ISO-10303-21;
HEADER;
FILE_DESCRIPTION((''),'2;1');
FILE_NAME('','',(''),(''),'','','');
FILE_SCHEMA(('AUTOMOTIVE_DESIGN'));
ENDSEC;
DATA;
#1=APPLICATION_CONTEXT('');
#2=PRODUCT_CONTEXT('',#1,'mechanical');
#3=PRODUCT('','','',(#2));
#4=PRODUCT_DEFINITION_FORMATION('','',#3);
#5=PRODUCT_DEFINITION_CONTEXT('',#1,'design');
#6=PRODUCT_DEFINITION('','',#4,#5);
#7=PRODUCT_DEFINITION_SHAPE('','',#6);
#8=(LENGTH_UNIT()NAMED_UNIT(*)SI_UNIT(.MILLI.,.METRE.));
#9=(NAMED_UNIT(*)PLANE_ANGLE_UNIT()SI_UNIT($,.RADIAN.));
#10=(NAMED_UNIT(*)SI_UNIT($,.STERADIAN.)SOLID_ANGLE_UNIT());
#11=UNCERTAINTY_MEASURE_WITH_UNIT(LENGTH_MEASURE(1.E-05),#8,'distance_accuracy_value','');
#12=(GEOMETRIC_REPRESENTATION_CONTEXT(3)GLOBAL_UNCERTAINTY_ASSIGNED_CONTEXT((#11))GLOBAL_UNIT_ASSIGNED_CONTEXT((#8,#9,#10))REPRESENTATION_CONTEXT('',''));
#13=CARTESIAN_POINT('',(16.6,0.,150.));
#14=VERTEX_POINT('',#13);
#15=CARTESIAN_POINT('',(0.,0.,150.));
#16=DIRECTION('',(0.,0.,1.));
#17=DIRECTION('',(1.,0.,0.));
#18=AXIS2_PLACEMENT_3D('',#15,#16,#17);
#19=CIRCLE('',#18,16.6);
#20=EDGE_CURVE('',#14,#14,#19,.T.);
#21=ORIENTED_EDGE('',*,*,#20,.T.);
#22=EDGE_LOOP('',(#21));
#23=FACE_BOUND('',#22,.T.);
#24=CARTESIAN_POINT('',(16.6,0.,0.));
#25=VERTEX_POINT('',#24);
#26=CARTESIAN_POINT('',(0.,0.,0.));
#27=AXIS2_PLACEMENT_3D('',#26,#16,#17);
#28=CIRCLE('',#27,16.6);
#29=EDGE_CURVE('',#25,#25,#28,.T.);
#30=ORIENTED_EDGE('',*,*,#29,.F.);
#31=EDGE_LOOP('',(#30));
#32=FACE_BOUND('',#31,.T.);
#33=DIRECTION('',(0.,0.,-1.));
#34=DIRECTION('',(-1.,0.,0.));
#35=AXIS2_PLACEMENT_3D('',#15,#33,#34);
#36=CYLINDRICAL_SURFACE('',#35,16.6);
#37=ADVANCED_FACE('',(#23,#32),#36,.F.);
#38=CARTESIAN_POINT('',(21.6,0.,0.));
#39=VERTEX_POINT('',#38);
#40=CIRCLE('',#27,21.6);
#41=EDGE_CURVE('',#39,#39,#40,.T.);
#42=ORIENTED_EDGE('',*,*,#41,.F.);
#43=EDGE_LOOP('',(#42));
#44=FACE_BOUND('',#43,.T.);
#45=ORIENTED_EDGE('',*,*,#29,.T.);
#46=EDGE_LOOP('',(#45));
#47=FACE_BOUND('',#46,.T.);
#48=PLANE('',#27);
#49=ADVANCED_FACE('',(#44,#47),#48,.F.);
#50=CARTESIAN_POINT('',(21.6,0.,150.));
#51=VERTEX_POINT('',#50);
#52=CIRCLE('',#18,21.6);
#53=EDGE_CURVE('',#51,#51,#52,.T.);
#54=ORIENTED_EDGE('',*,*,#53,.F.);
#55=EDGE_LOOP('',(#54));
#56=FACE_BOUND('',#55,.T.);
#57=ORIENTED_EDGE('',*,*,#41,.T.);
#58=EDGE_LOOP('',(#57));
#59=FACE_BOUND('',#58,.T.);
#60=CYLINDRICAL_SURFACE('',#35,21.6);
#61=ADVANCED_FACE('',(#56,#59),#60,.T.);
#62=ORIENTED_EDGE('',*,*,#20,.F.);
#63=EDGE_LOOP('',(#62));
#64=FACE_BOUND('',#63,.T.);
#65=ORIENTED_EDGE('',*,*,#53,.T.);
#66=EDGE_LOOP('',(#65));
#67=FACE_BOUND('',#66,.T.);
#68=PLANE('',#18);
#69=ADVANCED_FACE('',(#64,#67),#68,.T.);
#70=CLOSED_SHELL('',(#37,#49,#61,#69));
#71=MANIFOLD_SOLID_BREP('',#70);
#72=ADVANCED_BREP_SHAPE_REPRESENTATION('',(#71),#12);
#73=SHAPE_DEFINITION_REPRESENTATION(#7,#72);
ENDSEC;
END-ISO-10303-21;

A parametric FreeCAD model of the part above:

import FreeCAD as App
import Part
import Sketcher

V = App.Vector

doc = App.newDocument("Part")
body = doc.addObject("PartDesign::Body", "Body")

sketch1 = doc.addObject("Sketcher::SketchObject", "Sketch")
body.addObject(sketch1)
sketch1.AttachmentSupport = (doc.XY_Plane, [""])
sketch1.MapMode = "FlatFace"
sketch1.addGeometry([
    Part.Circle(V(0, 0, 0), V(0, 0, 1), 22),
    Part.Circle(V(0, 0, 0), V(0, 0, 1), 17),
], False)
sketch1.addConstraint([
    Sketcher.Constraint("Coincident", 0, 3, -1, 1),
    Sketcher.Constraint("Coincident", 1, 3, -1, 1),
    Sketcher.Constraint("Diameter", 0, 43.2),
    Sketcher.Constraint("Diameter", 1, 33.2),
])
pad1 = doc.addObject("PartDesign::Pad", "Pad")
body.addObject(pad1)
pad1.Profile = sketch1
pad1.Length = 150

doc.recompute()
